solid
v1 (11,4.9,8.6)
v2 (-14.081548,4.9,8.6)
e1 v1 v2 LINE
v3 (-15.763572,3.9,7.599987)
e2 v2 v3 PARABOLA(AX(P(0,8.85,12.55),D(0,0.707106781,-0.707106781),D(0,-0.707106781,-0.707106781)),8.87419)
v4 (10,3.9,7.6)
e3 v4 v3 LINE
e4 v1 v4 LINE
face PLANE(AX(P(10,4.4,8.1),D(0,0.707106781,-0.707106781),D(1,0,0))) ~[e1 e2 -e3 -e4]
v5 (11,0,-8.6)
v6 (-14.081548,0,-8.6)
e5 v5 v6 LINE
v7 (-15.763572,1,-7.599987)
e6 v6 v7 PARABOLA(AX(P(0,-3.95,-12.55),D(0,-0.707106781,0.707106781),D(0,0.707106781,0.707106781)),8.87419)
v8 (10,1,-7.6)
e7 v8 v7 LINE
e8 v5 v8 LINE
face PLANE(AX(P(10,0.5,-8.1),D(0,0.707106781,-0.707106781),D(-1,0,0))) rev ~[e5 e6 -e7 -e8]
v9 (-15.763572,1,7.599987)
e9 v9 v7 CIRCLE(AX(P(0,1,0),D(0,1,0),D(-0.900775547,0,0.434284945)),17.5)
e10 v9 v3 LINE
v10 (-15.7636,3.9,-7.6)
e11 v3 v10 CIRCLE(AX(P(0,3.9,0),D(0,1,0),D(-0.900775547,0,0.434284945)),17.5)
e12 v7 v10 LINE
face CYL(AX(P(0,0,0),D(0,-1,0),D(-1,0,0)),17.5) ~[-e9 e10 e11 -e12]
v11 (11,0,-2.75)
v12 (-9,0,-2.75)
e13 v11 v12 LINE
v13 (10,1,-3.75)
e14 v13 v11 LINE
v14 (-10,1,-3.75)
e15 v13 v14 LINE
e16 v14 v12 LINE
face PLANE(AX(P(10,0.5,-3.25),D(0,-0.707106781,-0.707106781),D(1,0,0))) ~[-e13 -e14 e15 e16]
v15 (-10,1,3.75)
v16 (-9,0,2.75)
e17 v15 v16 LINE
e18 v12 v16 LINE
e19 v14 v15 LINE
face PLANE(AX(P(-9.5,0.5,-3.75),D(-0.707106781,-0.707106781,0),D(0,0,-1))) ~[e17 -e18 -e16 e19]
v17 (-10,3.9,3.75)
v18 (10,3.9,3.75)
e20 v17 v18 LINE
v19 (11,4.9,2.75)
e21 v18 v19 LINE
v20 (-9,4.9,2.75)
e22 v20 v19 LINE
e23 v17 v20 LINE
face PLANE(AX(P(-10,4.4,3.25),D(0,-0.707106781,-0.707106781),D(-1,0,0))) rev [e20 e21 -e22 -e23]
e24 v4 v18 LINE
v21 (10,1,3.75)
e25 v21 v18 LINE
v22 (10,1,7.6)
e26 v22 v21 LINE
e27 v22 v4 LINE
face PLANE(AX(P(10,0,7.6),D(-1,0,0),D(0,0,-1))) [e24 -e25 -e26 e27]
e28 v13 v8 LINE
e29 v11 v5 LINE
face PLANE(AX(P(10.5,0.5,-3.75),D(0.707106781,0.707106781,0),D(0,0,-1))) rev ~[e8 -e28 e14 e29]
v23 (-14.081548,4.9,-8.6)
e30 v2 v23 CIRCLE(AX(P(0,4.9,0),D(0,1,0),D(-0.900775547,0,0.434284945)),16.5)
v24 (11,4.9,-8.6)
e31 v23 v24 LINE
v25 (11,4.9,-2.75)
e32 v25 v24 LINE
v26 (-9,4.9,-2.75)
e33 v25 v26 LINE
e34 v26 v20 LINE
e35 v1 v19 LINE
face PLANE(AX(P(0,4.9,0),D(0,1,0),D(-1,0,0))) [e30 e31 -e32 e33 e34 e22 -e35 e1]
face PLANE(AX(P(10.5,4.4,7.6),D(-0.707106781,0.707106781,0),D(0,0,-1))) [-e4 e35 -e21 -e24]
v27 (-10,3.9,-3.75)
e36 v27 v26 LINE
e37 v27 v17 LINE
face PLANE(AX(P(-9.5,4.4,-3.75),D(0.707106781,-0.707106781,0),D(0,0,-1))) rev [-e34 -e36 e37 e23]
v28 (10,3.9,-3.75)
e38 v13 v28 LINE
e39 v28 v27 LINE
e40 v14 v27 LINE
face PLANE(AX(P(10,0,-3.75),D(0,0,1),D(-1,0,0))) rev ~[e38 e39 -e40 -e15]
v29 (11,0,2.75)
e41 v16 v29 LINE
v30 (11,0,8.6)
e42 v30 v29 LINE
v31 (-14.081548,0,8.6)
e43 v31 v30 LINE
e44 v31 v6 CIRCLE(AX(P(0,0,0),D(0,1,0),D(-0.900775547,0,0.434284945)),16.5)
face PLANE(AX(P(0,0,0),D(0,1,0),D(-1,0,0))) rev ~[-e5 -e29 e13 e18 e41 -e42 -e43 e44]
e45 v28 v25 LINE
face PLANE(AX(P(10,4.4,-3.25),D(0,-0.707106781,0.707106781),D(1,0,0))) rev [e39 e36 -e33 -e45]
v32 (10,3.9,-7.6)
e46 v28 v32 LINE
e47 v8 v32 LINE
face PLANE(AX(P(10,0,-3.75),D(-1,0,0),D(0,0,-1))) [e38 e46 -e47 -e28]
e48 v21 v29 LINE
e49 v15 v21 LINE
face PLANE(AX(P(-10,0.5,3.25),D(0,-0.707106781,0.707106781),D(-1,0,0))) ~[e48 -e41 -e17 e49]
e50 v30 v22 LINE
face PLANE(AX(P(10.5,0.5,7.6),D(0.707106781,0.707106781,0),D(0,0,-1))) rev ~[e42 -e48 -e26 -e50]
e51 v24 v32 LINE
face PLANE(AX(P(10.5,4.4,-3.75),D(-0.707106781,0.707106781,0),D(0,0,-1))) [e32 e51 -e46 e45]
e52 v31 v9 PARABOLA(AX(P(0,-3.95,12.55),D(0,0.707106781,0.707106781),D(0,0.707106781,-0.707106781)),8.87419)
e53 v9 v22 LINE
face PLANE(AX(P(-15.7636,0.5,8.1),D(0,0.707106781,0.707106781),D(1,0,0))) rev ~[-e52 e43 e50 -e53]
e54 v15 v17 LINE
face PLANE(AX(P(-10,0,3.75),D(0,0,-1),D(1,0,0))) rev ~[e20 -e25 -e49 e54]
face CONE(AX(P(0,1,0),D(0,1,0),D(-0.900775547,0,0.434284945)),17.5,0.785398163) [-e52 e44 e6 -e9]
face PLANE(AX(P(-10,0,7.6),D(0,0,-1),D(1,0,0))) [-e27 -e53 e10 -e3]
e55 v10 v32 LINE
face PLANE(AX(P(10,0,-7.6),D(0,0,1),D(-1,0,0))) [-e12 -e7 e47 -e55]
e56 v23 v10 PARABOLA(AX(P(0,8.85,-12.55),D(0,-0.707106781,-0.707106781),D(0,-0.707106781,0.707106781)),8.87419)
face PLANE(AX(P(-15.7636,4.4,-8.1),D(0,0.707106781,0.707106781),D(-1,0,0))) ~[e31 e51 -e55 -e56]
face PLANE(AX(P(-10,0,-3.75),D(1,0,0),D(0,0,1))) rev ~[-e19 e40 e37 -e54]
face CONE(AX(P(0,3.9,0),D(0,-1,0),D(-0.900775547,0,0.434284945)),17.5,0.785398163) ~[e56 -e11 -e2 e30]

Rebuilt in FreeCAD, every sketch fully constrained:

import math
import FreeCAD as App
import Part
import Sketcher
Q = App.Units.Quantity


def edges_at(feature, points):
    """Names of the edges that pass closest to the given points."""
    edges = feature.Shape.Edges
    near = lambda p: min(range(len(edges)), key=lambda i: edges[i].distToShape(Part.Vertex(*p))[0])
    return sorted({f"Edge{near(p) + 1}" for p in points})

doc = App.newDocument("Part")
body = doc.addObject("PartDesign::Body", "Body")

# Sketch on XZ plane
sketch1 = body.newObject("Sketcher::SketchObject", "Sketch")
sketch1.AttachmentSupport = (doc.getObject("XZ_Plane"), [""])
sketch1.MapMode = "FlatFace"
sketch1.addGeometry([
    Part.LineSegment(App.Vector(-10, -3.8, 0), App.Vector(-10, 3.8, 0)),  # 0
    Part.LineSegment(App.Vector(-10, 3.8, 0), App.Vector(10, 3.8, 0)),  # 1
    Part.LineSegment(App.Vector(10, 3.8, 0), App.Vector(10, 7.6, 0)),  # 2
    Part.LineSegment(App.Vector(10, 7.6, 0), App.Vector(-15.8, 7.6, 0)),  # 3
    Part.ArcOfCircle(Part.Circle(App.Vector(0, 0, 0), App.Vector(0, 0, 1), 17.5), math.radians(-154), math.radians(154)),  # 4
    Part.LineSegment(App.Vector(-15.8, -7.6, 0), App.Vector(10, -7.6, 0)),  # 5
    Part.LineSegment(App.Vector(10, -7.6, 0), App.Vector(10, -3.8, 0)),  # 6
    Part.LineSegment(App.Vector(10, -3.8, 0), App.Vector(-10, -3.8, 0)),  # 7
], False)
sketch1.addConstraint([
    Sketcher.Constraint("Coincident", 0, 2, 1, 1),
    Sketcher.Constraint("Coincident", 1, 2, 2, 1),
    Sketcher.Constraint("Coincident", 2, 2, 3, 1),
    Sketcher.Constraint("Coincident", 3, 2, 4, 2),
    Sketcher.Constraint("Coincident", 4, 1, 5, 1),
    Sketcher.Constraint("Coincident", 5, 2, 6, 1),
    Sketcher.Constraint("Coincident", 6, 2, 7, 1),
    Sketcher.Constraint("Coincident", 7, 2, 0, 1),
    Sketcher.Constraint("Vertical", 0),
    Sketcher.Constraint("Horizontal", 1),
    Sketcher.Constraint("Vertical", 2),
    Sketcher.Constraint("Horizontal", 3),
    Sketcher.Constraint("Horizontal", 5),
    Sketcher.Constraint("Vertical", 6),
    Sketcher.Constraint("Horizontal", 7),
    Sketcher.Constraint("Coincident", 4, 3, -1, 1),
    Sketcher.Constraint("Symmetric", 0, 2, 6, 2, -1, 1),
    Sketcher.Constraint("Symmetric", 2, 2, 5, 2, -1),
    Sketcher.Constraint("Radius", 4, Q("17.5 mm")),
    Sketcher.Constraint("DistanceX", 1, 1, 1, 2, Q("20 mm")),
    Sketcher.Constraint("DistanceY", 0, 1, 0, 2, Q("7.5 mm")),
    Sketcher.Constraint("DistanceY", -1, 1, 2, 2, Q("7.6 mm")),
])
pad1 = body.newObject("PartDesign::Pad", "Pad")
pad1.Profile = sketch1
pad1.Length = 4.9
pad1.Reversed = True
doc.recompute()

chamfer = body.newObject("PartDesign::Chamfer", "Chamfer")
chamfer.Base = (pad1, edges_at(pad1, [
    (-10, 4.9, 0),
    (0, 4.9, 3.75),
    (0, 4.9, -3.75),
    (10, 4.9, -5.675),
    (0, 4.9, -7.6),
    (17.5, 4.9, 0),
    (0, 4.9, 7.6),
    (10, 4.9, 5.675),
    (17.5, 0, 0),
    (0, 0, -7.6),
    (0, 0, -3.75),
    (0, 0, 3.75),
    (0, 0, 7.6),
    (10, 0, 5.675),
    (10, 0, -5.675),
    (-10, 0, 0),
]))
chamfer.Size = 1

doc.recompute()
